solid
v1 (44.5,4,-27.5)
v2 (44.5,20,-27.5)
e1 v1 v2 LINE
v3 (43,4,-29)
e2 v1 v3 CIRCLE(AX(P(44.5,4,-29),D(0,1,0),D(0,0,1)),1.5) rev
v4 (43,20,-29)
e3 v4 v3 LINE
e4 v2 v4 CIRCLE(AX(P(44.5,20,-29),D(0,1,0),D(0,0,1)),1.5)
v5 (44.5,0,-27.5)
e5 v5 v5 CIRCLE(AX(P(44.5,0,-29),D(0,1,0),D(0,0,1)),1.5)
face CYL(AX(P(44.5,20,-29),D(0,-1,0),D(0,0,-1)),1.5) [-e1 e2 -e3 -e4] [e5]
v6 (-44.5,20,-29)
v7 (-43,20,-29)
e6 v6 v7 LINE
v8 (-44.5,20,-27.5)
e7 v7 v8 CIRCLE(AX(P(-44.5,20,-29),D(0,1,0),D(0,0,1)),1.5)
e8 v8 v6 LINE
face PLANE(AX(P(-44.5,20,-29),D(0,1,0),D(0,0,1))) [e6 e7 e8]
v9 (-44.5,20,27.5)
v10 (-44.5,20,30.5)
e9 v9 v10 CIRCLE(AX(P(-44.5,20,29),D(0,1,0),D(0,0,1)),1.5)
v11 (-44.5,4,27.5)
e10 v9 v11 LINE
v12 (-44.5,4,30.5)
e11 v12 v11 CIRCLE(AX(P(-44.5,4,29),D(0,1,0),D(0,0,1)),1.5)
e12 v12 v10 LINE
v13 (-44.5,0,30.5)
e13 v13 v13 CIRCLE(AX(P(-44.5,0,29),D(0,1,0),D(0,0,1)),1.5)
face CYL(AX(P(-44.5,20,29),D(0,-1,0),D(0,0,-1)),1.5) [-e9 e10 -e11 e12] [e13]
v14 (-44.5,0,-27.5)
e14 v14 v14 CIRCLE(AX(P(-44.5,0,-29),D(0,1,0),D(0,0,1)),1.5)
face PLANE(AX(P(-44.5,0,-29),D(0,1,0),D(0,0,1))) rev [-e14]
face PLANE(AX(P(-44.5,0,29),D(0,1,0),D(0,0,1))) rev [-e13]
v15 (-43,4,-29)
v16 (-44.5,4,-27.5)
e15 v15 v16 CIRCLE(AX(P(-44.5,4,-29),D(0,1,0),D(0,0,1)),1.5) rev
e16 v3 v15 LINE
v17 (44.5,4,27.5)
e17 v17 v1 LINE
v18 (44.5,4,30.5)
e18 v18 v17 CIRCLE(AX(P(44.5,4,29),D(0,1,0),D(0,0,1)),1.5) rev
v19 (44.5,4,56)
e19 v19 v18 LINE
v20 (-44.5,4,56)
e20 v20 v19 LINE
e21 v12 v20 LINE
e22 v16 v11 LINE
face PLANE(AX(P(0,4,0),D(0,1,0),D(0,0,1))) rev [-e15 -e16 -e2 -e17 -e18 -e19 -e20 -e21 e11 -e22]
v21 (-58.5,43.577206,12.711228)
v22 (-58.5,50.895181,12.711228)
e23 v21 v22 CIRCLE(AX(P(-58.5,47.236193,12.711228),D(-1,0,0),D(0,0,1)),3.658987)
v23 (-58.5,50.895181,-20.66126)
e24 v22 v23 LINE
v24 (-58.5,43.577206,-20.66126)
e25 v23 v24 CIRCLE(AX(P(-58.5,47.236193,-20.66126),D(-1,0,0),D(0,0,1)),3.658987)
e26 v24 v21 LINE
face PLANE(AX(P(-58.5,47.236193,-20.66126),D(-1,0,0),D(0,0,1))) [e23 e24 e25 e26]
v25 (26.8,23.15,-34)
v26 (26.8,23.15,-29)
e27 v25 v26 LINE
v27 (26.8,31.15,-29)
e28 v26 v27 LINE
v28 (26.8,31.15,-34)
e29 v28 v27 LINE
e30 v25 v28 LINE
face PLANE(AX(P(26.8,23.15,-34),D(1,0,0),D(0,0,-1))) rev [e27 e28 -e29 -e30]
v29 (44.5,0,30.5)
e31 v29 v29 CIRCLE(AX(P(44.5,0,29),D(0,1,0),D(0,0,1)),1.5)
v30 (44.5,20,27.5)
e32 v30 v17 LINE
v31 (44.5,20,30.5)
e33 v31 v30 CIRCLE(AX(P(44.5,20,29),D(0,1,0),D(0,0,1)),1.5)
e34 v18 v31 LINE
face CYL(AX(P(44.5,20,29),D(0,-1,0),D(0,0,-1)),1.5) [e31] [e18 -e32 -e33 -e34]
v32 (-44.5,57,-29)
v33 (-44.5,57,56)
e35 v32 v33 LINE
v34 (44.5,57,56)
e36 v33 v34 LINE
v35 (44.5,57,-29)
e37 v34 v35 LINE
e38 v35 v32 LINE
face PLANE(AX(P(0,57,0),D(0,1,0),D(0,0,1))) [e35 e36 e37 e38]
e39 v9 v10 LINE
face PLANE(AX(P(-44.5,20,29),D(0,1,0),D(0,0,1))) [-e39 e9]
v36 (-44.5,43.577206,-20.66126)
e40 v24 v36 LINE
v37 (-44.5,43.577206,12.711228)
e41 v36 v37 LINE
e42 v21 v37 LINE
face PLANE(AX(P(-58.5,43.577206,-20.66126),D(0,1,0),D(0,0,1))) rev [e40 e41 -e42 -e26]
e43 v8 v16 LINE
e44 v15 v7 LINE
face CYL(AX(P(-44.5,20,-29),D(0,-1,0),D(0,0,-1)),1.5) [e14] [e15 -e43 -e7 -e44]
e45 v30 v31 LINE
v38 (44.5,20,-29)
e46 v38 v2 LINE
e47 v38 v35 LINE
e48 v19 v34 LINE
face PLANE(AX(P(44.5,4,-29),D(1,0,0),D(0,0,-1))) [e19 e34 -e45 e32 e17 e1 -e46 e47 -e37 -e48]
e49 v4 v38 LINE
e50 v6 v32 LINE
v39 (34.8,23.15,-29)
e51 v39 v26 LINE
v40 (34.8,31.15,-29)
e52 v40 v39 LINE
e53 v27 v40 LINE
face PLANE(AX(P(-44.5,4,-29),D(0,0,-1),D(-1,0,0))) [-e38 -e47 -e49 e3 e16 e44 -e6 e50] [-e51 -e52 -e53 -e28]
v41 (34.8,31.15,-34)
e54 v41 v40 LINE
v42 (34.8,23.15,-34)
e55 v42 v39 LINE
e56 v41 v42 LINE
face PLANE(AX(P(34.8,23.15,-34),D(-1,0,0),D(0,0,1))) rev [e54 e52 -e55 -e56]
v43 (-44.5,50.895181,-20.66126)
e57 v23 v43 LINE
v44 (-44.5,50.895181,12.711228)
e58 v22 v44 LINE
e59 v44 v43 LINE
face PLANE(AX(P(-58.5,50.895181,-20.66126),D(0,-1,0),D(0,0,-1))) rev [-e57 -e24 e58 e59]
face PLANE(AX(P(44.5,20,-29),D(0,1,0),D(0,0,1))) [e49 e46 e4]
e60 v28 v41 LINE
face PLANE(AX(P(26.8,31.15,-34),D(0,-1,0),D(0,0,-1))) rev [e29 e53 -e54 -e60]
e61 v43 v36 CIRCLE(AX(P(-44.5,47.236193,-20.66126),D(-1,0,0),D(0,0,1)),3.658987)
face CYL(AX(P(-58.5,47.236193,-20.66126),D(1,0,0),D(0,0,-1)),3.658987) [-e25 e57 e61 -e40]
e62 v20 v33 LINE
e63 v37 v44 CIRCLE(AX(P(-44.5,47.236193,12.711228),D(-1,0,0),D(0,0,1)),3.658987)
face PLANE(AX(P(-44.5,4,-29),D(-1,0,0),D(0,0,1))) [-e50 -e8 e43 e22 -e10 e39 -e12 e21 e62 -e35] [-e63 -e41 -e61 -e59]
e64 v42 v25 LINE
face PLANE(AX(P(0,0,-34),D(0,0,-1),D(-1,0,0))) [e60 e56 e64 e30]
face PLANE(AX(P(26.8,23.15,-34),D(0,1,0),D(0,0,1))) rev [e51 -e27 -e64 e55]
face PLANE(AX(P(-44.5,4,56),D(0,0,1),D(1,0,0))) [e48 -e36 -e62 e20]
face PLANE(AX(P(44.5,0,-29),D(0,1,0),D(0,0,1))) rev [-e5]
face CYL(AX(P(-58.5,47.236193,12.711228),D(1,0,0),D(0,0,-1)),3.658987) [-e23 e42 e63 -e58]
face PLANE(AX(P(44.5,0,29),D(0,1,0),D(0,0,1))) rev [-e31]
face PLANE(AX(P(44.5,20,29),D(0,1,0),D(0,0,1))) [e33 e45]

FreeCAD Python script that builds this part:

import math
import FreeCAD as App
import Part
import Sketcher
Q = App.Units.Quantity

doc = App.newDocument("Part")
body = doc.addObject("PartDesign::Body", "Body")

# Sketch on XZ plane
sketch1 = body.newObject("Sketcher::SketchObject", "Sketch")
sketch1.AttachmentSupport = (doc.getObject("XZ_Plane"), [""])
sketch1.MapMode = "FlatFace"
sketch1.addGeometry(Part.Circle(App.Vector(-44.5, -29, 0), App.Vector(0, 0, 1), 1.5), False)
sketch1.addConstraint(Sketcher.Constraint("Diameter", 0, Q("3 mm")))
sketch1.addConstraint(Sketcher.Constraint("DistanceY", 0, 3, -1, 1, Q("29 mm")))
sketch1.addConstraint(Sketcher.Constraint("DistanceX", 0, 3, -1, 1, Q("44.5 mm")))
pad1 = body.newObject("PartDesign::Pad", "Pad")
pad1.Profile = sketch1
pad1.Length = 20
pad1.Reversed = True
body2 = doc.addObject("PartDesign::Body", "Body001")

# Sketch on XZ plane
sketch2 = body2.newObject("Sketcher::SketchObject", "Sketch001")
sketch2.AttachmentSupport = (doc.getObject("XZ_Plane001"), [""])
sketch2.MapMode = "FlatFace"
sketch2.addGeometry(Part.Circle(App.Vector(44.5, -29, 0), App.Vector(0, 0, 1), 1.5), False)
sketch2.addConstraint(Sketcher.Constraint("Diameter", 0, Q("3 mm")))
sketch2.addConstraint(Sketcher.Constraint("DistanceY", 0, 3, -1, 1, Q("29 mm")))
sketch2.addConstraint(Sketcher.Constraint("DistanceX", -1, 1, 0, 3, Q("44.5 mm")))
pad2 = body2.newObject("PartDesign::Pad", "Pad001")
pad2.Profile = sketch2
pad2.Length = 20
pad2.Reversed = True
body3 = doc.addObject("PartDesign::Body", "Body002")

# Sketch on XZ plane
sketch3 = body3.newObject("Sketcher::SketchObject", "Sketch002")
sketch3.AttachmentSupport = (doc.getObject("XZ_Plane002"), [""])
sketch3.MapMode = "FlatFace"
sketch3.addGeometry(Part.Circle(App.Vector(-44.5, 29, 0), App.Vector(0, 0, 1), 1.5), False)
sketch3.addConstraint(Sketcher.Constraint("Diameter", 0, Q("3 mm")))
sketch3.addConstraint(Sketcher.Constraint("DistanceY", -1, 1, 0, 3, Q("29 mm")))
sketch3.addConstraint(Sketcher.Constraint("DistanceX", 0, 3, -1, 1, Q("44.5 mm")))
pad3 = body3.newObject("PartDesign::Pad", "Pad002")
pad3.Profile = sketch3
pad3.Length = 20
pad3.Reversed = True
body4 = doc.addObject("PartDesign::Body", "Body003")

# Sketch on XZ plane
sketch4 = body4.newObject("Sketcher::SketchObject", "Sketch003")
sketch4.AttachmentSupport = (doc.getObject("XZ_Plane003"), [""])
sketch4.MapMode = "FlatFace"
sketch4.addGeometry(Part.Circle(App.Vector(44.5, 29, 0), App.Vector(0, 0, 1), 1.5), False)
sketch4.addConstraint(Sketcher.Constraint("Diameter", 0, Q("3 mm")))
sketch4.addConstraint(Sketcher.Constraint("DistanceY", -1, 1, 0, 3, Q("29 mm")))
sketch4.addConstraint(Sketcher.Constraint("DistanceX", -1, 1, 0, 3, Q("44.5 mm")))
pad4 = body4.newObject("PartDesign::Pad", "Pad003")
pad4.Profile = sketch4
pad4.Length = 20
pad4.Reversed = True
body.AllowCompound = True
doc.recompute()

boolean = body.newObject("PartDesign::Boolean", "Boolean")
boolean.Type = "Fuse"
boolean.addObjects([body2])
doc.recompute()

boolean2 = body.newObject("PartDesign::Boolean", "Boolean001")
boolean2.Type = "Fuse"
boolean2.addObjects([body3])
doc.recompute()

boolean3 = body.newObject("PartDesign::Boolean", "Boolean002")
boolean3.Type = "Fuse"
boolean3.addObjects([body4])

# Sketch on XZ plane
sketch5 = body.newObject("Sketcher::SketchObject", "Sketch004")
sketch5.AttachmentSupport = (doc.getObject("XZ_Plane"), [""])
sketch5.MapMode = "FlatFace"
sketch5.AttachmentOffset = App.Placement(App.Vector(0, 0, -20), App.Rotation())
sketch5.addGeometry(Part.LineSegment(App.Vector(-44, -29, 0), App.Vector(-44, 56, 0)), False)
sketch5.addGeometry(Part.LineSegment(App.Vector(-44, 56, 0), App.Vector(44, 56, 0)), False)
sketch5.addGeometry(Part.LineSegment(App.Vector(44, 56, 0), App.Vector(44, -29, 0)), False)
sketch5.addGeometry(Part.LineSegment(App.Vector(44, -29, 0), App.Vector(-44, -29, 0)), False)
sketch5.addConstraint(Sketcher.Constraint("Coincident", 0, 2, 1, 1))
sketch5.addConstraint(Sketcher.Constraint("Coincident", 1, 2, 2, 1))
sketch5.addConstraint(Sketcher.Constraint("Coincident", 2, 2, 3, 1))
sketch5.addConstraint(Sketcher.Constraint("Coincident", 3, 2, 0, 1))
sketch5.addConstraint(Sketcher.Constraint("Vertical", 0))
sketch5.addConstraint(Sketcher.Constraint("Horizontal", 1))
sketch5.addConstraint(Sketcher.Constraint("Vertical", 2))
sketch5.addConstraint(Sketcher.Constraint("Horizontal", 3))
sketch5.addConstraint(Sketcher.Constraint("DistanceX", 1, 1, 1, 2, Q("89 mm")))
sketch5.addConstraint(Sketcher.Constraint("DistanceY", 0, 1, 0, 2, Q("85 mm")))
sketch5.addConstraint(Sketcher.Constraint("DistanceY", -1, 1, 0, 2, Q("56 mm")))
sketch5.addConstraint(Sketcher.Constraint("DistanceX", 0, 2, -1, 1, Q("44.5 mm")))
pad5 = body.newObject("PartDesign::Pad", "Pad004")
pad5.Profile = sketch5
pad5.Type = "TwoLengths"
pad5.Length = 37
pad5.Length2 = 16
pad5.Reversed = True

# Sketch on YZ plane
sketch6 = body.newObject("Sketcher::SketchObject", "Sketch005")
sketch6.AttachmentSupport = (doc.getObject("YZ_Plane"), [""])
sketch6.MapMode = "FlatFace"
sketch6.AttachmentOffset = App.Placement(App.Vector(0, 0, -44.5), App.Rotation())
sketch6.addGeometry(Part.LineSegment(App.Vector(50.9, 12.7, 0), App.Vector(50.9, -20.7, 0)), False)
sketch6.addGeometry(Part.ArcOfCircle(Part.Circle(App.Vector(47.2, -20.7, 0), App.Vector(0, 0, 1), 3.7), math.radians(-180), math.radians(0)), False)
sketch6.addGeometry(Part.LineSegment(App.Vector(43.6, -20.7, 0), App.Vector(43.6, 12.7, 0)), False)
sketch6.addGeometry(Part.ArcOfCircle(Part.Circle(App.Vector(47.2, 12.7, 0), App.Vector(0, 0, 1), 3.7), math.radians(0), math.radians(180)), False)
sketch6.addConstraint(Sketcher.Constraint("Tangent", 0, 2, 1, 2))
sketch6.addConstraint(Sketcher.Constraint("Tangent", 1, 1, 2, 1))
sketch6.addConstraint(Sketcher.Constraint("Tangent", 2, 2, 3, 2))
sketch6.addConstraint(Sketcher.Constraint("Tangent", 3, 1, 0, 1))
sketch6.addConstraint(Sketcher.Constraint("Vertical", 0))
sketch6.addConstraint(Sketcher.Constraint("Vertical", 2))
sketch6.addConstraint(Sketcher.Constraint("Radius", 1, Q("3.658987 mm")))
sketch6.addConstraint(Sketcher.Constraint("DistanceY", 0, 2, 0, 1, Q("33.372488 mm")))
sketch6.addConstraint(Sketcher.Constraint("DistanceY", 1, 3, -1, 1, Q("20.66126 mm")))
sketch6.addConstraint(Sketcher.Constraint("DistanceX", -1, 1, 0, 2, Q("50.895181 mm")))
pad6 = body.newObject("PartDesign::Pad", "Pad005")
pad6.Profile = sketch6
pad6.Length = 14
pad6.Reversed = True

# Sketch on XY plane
sketch7 = body.newObject("Sketcher::SketchObject", "Sketch006")
sketch7.AttachmentSupport = (doc.getObject("XY_Plane"), [""])
sketch7.MapMode = "FlatFace"
sketch7.AttachmentOffset = App.Placement(App.Vector(0, 0, -29), App.Rotation())
sketch7.addGeometry(Part.LineSegment(App.Vector(35, 31, 0), App.Vector(35, 23, 0)), False)
sketch7.addGeometry(Part.LineSegment(App.Vector(35, 23, 0), App.Vector(27, 23, 0)), False)
sketch7.addGeometry(Part.LineSegment(App.Vector(27, 23, 0), App.Vector(27, 31, 0)), False)
sketch7.addGeometry(Part.LineSegment(App.Vector(27, 31, 0), App.Vector(35, 31, 0)), False)
sketch7.addConstraint(Sketcher.Constraint("Coincident", 0, 2, 1, 1))
sketch7.addConstraint(Sketcher.Constraint("Coincident", 1, 2, 2, 1))
sketch7.addConstraint(Sketcher.Constraint("Coincident", 2, 2, 3, 1))
sketch7.addConstraint(Sketcher.Constraint("Coincident", 3, 2, 0, 1))
sketch7.addConstraint(Sketcher.Constraint("Vertical", 0))
sketch7.addConstraint(Sketcher.Constraint("Horizontal", 1))
sketch7.addConstraint(Sketcher.Constraint("Vertical", 2))
sketch7.addConstraint(Sketcher.Constraint("Horizontal", 3))
sketch7.addConstraint(Sketcher.Constraint("Equal", 3, 0))
sketch7.addConstraint(Sketcher.Constraint("DistanceX", 1, 2, 1, 1, Q("8 mm")))
sketch7.addConstraint(Sketcher.Constraint("DistanceX", -1, 1, 0, 2, Q("34.8 mm")))
sketch7.addConstraint(Sketcher.Constraint("DistanceY", -1, 1, 0, 2, Q("23.15 mm")))
pad7 = body.newObject("PartDesign::Pad", "Pad006")
pad7.Profile = sketch7
pad7.Length = 5
pad7.Reversed = True

doc.recompute()
